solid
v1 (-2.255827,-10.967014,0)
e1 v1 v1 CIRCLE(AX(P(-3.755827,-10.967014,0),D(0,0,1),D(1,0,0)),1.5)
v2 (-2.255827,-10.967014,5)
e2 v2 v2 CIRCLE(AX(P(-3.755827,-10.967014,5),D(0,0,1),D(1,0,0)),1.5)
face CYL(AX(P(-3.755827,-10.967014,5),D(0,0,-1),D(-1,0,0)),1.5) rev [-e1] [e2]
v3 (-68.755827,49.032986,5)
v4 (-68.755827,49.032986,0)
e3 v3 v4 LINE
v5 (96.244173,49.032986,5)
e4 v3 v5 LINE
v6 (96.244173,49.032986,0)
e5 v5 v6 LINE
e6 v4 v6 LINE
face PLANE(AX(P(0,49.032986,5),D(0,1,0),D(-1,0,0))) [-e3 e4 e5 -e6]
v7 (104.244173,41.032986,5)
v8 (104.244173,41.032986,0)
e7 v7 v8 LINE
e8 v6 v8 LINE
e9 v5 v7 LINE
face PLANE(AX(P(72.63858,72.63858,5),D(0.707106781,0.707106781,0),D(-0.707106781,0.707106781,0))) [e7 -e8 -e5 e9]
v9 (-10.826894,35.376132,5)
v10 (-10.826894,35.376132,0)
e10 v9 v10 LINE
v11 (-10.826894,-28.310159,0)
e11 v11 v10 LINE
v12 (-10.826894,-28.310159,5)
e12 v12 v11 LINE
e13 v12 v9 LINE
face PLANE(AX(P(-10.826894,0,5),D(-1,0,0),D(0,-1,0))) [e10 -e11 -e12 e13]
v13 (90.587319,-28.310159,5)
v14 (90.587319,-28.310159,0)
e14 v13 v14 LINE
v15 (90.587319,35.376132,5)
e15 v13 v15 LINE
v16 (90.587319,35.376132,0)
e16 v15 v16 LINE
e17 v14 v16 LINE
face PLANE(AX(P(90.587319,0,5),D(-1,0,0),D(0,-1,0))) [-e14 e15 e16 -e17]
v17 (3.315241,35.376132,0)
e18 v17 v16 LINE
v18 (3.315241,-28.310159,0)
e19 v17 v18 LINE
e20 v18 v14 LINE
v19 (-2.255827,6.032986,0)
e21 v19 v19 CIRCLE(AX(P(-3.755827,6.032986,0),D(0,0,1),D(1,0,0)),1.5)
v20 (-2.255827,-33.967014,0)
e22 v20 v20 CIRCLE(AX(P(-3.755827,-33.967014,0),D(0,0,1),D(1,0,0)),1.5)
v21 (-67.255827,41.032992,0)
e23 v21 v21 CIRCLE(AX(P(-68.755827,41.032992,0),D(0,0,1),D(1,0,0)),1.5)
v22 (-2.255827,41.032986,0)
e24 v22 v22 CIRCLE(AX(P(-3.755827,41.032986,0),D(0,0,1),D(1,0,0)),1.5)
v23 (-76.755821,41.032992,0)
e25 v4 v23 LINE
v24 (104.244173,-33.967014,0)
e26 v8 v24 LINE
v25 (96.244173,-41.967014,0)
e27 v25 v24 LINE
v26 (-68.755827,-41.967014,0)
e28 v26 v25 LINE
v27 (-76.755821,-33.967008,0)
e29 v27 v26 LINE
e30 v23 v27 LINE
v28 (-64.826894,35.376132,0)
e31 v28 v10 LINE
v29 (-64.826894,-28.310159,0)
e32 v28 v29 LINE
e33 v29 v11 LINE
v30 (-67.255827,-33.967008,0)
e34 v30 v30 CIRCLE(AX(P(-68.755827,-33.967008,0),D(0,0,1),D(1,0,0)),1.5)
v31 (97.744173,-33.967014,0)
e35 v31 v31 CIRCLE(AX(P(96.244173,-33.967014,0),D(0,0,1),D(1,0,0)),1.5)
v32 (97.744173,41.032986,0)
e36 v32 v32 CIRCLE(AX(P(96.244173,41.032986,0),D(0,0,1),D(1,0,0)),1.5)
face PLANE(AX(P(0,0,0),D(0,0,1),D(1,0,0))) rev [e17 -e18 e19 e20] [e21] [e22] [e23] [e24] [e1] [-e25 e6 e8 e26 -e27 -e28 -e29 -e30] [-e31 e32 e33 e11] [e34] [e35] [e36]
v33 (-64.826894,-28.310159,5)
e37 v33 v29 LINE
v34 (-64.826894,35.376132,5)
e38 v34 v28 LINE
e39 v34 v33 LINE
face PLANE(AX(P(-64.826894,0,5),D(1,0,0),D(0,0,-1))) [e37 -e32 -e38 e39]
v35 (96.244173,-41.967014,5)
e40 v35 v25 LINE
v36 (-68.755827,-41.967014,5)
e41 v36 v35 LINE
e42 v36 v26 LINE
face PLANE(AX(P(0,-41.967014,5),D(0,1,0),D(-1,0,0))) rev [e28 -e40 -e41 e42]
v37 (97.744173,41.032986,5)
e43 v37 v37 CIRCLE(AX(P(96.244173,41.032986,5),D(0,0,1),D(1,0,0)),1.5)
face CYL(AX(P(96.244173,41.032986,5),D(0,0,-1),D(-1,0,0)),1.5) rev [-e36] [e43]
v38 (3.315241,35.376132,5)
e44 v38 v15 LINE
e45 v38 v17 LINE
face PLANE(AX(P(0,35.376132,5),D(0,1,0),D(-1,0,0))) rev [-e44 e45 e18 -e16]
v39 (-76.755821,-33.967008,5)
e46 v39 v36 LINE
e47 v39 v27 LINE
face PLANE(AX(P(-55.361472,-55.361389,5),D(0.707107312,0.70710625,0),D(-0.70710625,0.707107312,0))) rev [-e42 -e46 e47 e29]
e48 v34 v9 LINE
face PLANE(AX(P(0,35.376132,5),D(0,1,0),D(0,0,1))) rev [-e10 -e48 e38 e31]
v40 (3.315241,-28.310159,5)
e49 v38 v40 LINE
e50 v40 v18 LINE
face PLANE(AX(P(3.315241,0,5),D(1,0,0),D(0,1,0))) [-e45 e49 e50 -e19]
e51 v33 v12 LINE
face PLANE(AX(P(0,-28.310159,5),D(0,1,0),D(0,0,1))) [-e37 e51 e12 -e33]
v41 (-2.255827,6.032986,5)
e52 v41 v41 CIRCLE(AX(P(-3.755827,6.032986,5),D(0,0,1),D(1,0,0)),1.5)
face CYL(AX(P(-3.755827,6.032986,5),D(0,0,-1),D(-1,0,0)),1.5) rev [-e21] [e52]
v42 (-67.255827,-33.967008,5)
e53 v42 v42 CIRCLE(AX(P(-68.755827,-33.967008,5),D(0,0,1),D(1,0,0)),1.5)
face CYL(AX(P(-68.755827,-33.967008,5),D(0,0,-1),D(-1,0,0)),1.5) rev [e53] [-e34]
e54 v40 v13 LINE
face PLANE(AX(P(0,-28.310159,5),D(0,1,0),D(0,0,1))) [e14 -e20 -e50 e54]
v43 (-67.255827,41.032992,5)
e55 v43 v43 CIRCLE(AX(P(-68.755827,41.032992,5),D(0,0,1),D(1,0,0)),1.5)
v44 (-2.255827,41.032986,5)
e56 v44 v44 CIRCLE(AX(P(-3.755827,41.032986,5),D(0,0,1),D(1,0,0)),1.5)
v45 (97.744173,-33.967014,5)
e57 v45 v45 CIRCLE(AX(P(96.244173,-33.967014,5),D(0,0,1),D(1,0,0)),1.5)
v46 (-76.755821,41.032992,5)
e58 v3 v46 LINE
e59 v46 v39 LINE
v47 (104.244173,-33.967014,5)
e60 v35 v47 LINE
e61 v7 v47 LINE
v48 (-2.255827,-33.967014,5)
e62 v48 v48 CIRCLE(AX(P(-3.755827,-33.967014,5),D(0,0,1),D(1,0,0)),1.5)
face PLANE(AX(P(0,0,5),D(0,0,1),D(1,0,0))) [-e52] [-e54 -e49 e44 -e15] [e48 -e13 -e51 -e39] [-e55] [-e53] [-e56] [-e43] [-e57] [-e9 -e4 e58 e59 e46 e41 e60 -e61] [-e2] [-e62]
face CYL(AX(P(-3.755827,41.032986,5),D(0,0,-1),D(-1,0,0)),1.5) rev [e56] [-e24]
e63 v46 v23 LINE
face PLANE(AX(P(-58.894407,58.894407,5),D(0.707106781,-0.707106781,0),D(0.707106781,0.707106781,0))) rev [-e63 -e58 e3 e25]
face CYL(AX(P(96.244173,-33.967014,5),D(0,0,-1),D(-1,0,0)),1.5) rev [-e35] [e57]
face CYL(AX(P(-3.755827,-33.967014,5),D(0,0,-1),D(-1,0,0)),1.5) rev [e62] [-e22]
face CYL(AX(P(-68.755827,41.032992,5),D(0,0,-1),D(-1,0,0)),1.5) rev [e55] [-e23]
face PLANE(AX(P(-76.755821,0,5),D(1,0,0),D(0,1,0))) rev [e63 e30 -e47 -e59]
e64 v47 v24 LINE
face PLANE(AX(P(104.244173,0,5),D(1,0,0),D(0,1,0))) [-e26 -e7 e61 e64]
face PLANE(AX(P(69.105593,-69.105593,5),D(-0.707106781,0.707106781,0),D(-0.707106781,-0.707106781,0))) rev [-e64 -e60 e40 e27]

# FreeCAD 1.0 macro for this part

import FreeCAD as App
import Part
import Sketcher

V = App.Vector


def add_polygon(sketch, points):
    """Adds a closed chain of lines whose ends are joined by coincident constraints."""
    first, n = sketch.GeometryCount, len(points)
    for a, b in zip(points, points[1:] + points[:1]):
        sketch.addGeometry(Part.LineSegment(App.Vector(*a, 0), App.Vector(*b, 0)), False)
    for i in range(n):
        sketch.addConstraint(Sketcher.Constraint("Coincident", first + i, 2, first + (i + 1) % n, 1))

doc = App.newDocument("Part")
body = doc.addObject("PartDesign::Body", "Body")

sketch1 = body.newObject("Sketcher::SketchObject", "Sketch")
sketch1.AttachmentSupport = (doc.getObject("XY_Plane"), [""])
sketch1.MapMode = "FlatFace"
add_polygon(sketch1, [(96.2, 49), (-68.8, 49), (-76.8, 41), (-76.8, -34), (-68.8, -42), (96.2, -42), (104.2, -34), (104.2, 41)])
sketch1.addGeometry(Part.Circle(V(-68.8, -34, 0), V(0, 0, 1), 1.5), False)
sketch1.addGeometry(Part.Circle(V(-3.8, -34, 0), V(0, 0, 1), 1.5), False)
add_polygon(sketch1, [(-10.8, -28.3), (-64.8, -28.3), (-64.8, 35.4), (-10.8, 35.4)])
sketch1.addGeometry(Part.Circle(V(-3.8, -11, 0), V(0, 0, 1), 1.5), False)
sketch1.addGeometry(Part.Circle(V(96.2, -34, 0), V(0, 0, 1), 1.5), False)
add_polygon(sketch1, [(90.6, 35.4), (90.6, -28.3), (3.3, -28.3), (3.3, 35.4)])
sketch1.addGeometry(Part.Circle(V(-3.8, 6, 0), V(0, 0, 1), 1.5), False)
sketch1.addGeometry(Part.Circle(V(-68.8, 41, 0), V(0, 0, 1), 1.5), False)
sketch1.addGeometry(Part.Circle(V(-3.8, 41, 0), V(0, 0, 1), 1.5), False)
sketch1.addGeometry(Part.Circle(V(96.2, 41, 0), V(0, 0, 1), 1.5), False)
sketch1.addConstraint([
    Sketcher.Constraint("Horizontal", 0),
    Sketcher.Constraint("Vertical", 2),
    Sketcher.Constraint("Horizontal", 4),
    Sketcher.Constraint("Vertical", 6),
    Sketcher.Constraint("Horizontal", 10),
    Sketcher.Constraint("Vertical", 11),
    Sketcher.Constraint("Horizontal", 12),
    Sketcher.Constraint("Vertical", 13),
    Sketcher.Constraint("Vertical", 16),
    Sketcher.Constraint("Horizontal", 17),
    Sketcher.Constraint("Vertical", 18),
    Sketcher.Constraint("Horizontal", 19),
    Sketcher.Constraint("Equal", 8, 9),
    Sketcher.Constraint("Equal", 9, 14),
    Sketcher.Constraint("Equal", 14, 15),
    Sketcher.Constraint("Equal", 15, 20),
    Sketcher.Constraint("Equal", 20, 21),
    Sketcher.Constraint("Equal", 21, 22),
    Sketcher.Constraint("Equal", 22, 23),
    Sketcher.Constraint("Perpendicular", 1, 3),
    Sketcher.Constraint("Perpendicular", 3, 5),
    Sketcher.Constraint("Perpendicular", 5, 7),
    Sketcher.Constraint("Horizontal", 9, 3, 15, 3),
    Sketcher.Constraint("Horizontal", 22, 3, 23, 3),
    Sketcher.Constraint("Horizontal", 21, 3, 1, 2),
    Sketcher.Constraint("Horizontal", 8, 3, 2, 2),
    Sketcher.Constraint("Horizontal", 15, 3, 5, 2),
    Sketcher.Constraint("Horizontal", 23, 3, 6, 2),
    Sketcher.Constraint("Horizontal", 13, 2, 16, 2),
    Sketcher.Constraint("Horizontal", 12, 2, 18, 2),
    Sketcher.Constraint("Vertical", 9, 3, 14, 3),
    Sketcher.Constraint("Vertical", 14, 3, 20, 3),
    Sketcher.Constraint("Vertical", 8, 3, 21, 3),
    Sketcher.Constraint("Vertical", 20, 3, 22, 3),
    Sketcher.Constraint("Vertical", 15, 3, 23, 3),
    Sketcher.Constraint("Vertical", 21, 3, 0, 2),
    Sketcher.Constraint("Vertical", 0, 2, 3, 2),
    Sketcher.Constraint("Vertical", 23, 3, 4, 2),
    Sketcher.Constraint("Vertical", 4, 2, 7, 2),
    Sketcher.Constraint("Equal", 2, 6),
    Sketcher.Constraint("Equal", 3, 5),
    Sketcher.Constraint("Diameter", 8, 3.0),
    Sketcher.Constraint("DistanceX", 0, 2, 0, 1, 165.0),
    Sketcher.Constraint("DistanceX", 10, 2, 10, 1, 54.0),
    Sketcher.Constraint("DistanceY", 2, 2, 2, 1, 75.0),
    Sketcher.Constraint("DistanceX", 8, 3, 9, 3, 65.0),
    Sketcher.Constraint("DistanceY", 9, 3, 14, 3, 23.0),
    Sketcher.Constraint("DistanceY", 14, 3, 20, 3, 17.0),
    Sketcher.Constraint("DistanceY", 22, 3, 0, 2, 8.0),
    Sketcher.Constraint("DistanceY", 11, 1, 11, 2, 63.686292),
    Sketcher.Constraint("DistanceX", 17, 2, 17, 1, 87.272078),
    Sketcher.Constraint("DistanceX", 1, 2, -1, 1, 76.755821),
    Sketcher.Constraint("DistanceY", 10, 2, -1, 1, 28.310159),
    Sketcher.Constraint("DistanceX", -1, 1, 16, 2, 90.587319),
    Sketcher.Constraint("DistanceY", 8, 3, 10, 2, 5.656848),
    Sketcher.Constraint("DistanceX", 10, 2, -1, 1, 64.826894),
])
pad1 = body.newObject("PartDesign::Pad", "Pad")
pad1.Profile = sketch1
pad1.Length = 5

doc.recompute()
